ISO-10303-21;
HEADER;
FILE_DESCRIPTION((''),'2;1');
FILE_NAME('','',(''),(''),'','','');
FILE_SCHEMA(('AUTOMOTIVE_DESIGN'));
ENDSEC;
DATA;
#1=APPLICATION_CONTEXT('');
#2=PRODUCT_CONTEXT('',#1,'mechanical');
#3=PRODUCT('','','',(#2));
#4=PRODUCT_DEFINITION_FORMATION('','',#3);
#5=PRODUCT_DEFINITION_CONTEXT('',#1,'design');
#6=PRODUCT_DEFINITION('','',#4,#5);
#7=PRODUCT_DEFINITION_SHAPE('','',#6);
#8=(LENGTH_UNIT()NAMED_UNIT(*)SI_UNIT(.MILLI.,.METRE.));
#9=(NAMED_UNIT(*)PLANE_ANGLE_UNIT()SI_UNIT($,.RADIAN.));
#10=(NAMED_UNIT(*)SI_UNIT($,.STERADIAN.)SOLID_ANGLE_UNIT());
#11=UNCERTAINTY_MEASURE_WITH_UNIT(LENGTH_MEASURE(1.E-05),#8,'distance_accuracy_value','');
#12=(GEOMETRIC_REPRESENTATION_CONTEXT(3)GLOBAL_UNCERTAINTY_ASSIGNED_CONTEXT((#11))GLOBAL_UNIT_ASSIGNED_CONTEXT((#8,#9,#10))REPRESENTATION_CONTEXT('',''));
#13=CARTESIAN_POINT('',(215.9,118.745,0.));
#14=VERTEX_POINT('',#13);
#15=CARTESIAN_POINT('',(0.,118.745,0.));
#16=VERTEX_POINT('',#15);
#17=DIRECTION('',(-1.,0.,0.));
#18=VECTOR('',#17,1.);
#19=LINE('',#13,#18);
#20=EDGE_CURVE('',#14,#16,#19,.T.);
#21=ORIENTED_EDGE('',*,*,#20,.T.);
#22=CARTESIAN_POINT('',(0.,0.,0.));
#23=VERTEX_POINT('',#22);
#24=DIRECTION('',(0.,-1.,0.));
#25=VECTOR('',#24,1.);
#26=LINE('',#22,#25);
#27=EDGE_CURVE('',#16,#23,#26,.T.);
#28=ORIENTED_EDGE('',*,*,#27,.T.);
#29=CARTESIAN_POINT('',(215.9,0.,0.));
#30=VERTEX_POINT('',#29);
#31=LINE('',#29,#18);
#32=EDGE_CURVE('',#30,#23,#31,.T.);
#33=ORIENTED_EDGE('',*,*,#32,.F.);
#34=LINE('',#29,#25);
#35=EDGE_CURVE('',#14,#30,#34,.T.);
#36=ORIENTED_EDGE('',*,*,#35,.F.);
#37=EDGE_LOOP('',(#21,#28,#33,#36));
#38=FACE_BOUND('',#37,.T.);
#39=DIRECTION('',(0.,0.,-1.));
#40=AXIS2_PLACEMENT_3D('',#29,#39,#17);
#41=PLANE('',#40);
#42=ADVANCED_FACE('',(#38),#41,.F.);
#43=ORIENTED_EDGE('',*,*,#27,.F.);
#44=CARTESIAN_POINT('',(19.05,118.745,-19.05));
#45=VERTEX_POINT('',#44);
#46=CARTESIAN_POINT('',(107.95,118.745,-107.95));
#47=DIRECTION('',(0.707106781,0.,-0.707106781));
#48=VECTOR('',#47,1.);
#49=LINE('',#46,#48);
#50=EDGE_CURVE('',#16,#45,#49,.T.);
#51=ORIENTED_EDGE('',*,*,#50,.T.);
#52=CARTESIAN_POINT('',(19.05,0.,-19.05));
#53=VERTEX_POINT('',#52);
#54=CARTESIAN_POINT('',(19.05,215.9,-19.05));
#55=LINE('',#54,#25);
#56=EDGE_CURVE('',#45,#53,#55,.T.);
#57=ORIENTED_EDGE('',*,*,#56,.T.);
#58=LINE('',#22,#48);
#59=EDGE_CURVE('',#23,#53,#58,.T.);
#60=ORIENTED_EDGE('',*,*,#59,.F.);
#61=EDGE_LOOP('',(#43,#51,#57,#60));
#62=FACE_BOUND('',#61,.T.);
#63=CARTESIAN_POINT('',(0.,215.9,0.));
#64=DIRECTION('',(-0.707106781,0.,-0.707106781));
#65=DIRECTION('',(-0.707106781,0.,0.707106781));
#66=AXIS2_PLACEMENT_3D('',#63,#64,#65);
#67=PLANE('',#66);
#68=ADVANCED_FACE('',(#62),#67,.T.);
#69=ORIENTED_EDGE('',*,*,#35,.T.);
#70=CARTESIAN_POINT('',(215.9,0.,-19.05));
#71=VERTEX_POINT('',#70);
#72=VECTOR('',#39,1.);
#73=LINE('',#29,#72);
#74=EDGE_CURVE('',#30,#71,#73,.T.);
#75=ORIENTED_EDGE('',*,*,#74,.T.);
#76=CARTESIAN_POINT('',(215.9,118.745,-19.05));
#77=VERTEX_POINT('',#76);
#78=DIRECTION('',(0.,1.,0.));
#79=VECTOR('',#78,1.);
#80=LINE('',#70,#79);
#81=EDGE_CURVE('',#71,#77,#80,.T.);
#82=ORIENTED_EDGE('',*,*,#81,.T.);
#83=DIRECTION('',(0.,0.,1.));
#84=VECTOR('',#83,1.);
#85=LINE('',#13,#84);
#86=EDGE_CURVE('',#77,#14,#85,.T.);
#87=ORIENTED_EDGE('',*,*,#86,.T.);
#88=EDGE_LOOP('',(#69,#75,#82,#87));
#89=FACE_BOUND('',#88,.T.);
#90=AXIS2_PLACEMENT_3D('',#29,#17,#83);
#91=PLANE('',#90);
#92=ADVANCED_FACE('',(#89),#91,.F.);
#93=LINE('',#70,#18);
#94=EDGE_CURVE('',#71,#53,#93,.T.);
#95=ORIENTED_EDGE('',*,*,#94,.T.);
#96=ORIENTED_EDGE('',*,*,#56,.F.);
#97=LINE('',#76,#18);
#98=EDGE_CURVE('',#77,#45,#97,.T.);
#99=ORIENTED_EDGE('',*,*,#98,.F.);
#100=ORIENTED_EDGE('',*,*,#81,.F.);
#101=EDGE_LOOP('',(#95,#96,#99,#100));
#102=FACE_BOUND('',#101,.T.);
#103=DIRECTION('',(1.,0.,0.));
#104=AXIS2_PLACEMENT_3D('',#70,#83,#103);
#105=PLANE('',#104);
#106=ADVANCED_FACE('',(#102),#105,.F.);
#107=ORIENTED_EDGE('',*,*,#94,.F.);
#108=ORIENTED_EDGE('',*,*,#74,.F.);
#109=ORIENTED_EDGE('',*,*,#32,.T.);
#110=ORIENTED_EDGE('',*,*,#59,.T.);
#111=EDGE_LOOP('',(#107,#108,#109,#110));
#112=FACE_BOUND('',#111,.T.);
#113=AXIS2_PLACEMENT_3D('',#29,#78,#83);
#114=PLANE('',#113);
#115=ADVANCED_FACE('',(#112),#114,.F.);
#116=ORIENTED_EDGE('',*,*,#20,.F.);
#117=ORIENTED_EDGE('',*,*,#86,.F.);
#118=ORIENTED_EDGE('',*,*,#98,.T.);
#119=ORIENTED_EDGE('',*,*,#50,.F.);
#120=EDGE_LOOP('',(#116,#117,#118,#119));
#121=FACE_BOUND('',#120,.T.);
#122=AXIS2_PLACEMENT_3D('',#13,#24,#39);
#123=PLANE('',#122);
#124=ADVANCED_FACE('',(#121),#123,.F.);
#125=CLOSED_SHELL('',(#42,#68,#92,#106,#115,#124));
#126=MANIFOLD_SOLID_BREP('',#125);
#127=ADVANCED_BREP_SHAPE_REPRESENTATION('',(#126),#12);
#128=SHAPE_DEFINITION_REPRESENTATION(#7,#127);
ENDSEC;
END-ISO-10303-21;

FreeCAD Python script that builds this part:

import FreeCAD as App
import Part
import Sketcher
Q = App.Units.Quantity

doc = App.newDocument("Part")
body = doc.addObject("PartDesign::Body", "Body")

sketch1 = body.newObject("Sketcher::SketchObject", "Sketch")
sketch1.AttachmentSupport = (doc.getObject("YZ_Plane"), [""])
sketch1.MapMode = "FlatFace"
sketch1.addGeometry(Part.LineSegment(App.Vector(118.745, 0, 0), App.Vector(0, 0, 0)), False)
sketch1.addGeometry(Part.LineSegment(App.Vector(0, 0, 0), App.Vector(0, -19.05, 0)), False)
sketch1.addGeometry(Part.LineSegment(App.Vector(0, -19.05, 0), App.Vector(118.745, -19.05, 0)), False)
sketch1.addGeometry(Part.LineSegment(App.Vector(118.745, -19.05, 0), App.Vector(118.745, 0, 0)), False)
sketch1.addConstraint(Sketcher.Constraint("Coincident", 0, 2, 1, 1))
sketch1.addConstraint(Sketcher.Constraint("Coincident", 1, 2, 2, 1))
sketch1.addConstraint(Sketcher.Constraint("Coincident", 2, 2, 3, 1))
sketch1.addConstraint(Sketcher.Constraint("Coincident", 3, 2, 0, 1))
sketch1.addConstraint(Sketcher.Constraint("Horizontal", 0))
sketch1.addConstraint(Sketcher.Constraint("Vertical", 1))
sketch1.addConstraint(Sketcher.Constraint("Horizontal", 2))
sketch1.addConstraint(Sketcher.Constraint("Vertical", 3))
sketch1.addConstraint(Sketcher.Constraint("Coincident", 0, 2, -1, 1))
sketch1.addConstraint(Sketcher.Constraint("DistanceY", 1, 2, 1, 1, Q("0.75 in")))
sketch1.addConstraint(Sketcher.Constraint("DistanceX", 0, 2, 0, 1, Q("4.675 in")))
pad1 = body.newObject("PartDesign::Pad", "Pad")
pad1.Profile = sketch1
pad1.Length = Q("8.5 in")

sketch2 = body.newObject("Sketcher::SketchObject", "Sketch001")
sketch2.AttachmentSupport = (doc.getObject("XZ_Plane"), [""])
sketch2.MapMode = "FlatFace"
sketch2.addGeometry(Part.LineSegment(App.Vector(0, 0, 0), App.Vector(19.05, -19.05, 0)), False)
sketch2.addGeometry(Part.LineSegment(App.Vector(19.05, -19.05, 0), App.Vector(0, -19.05, 0)), False)
sketch2.addGeometry(Part.LineSegment(App.Vector(0, -19.05, 0), App.Vector(0, 0, 0)), False)
sketch2.addConstraint(Sketcher.Constraint("Coincident", 0, 2, 1, 1))
sketch2.addConstraint(Sketcher.Constraint("Coincident", 1, 2, 2, 1))
sketch2.addConstraint(Sketcher.Constraint("Coincident", 2, 2, 0, 1))
sketch2.addConstraint(Sketcher.Constraint("Horizontal", 1))
sketch2.addConstraint(Sketcher.Constraint("Vertical", 2))
sketch2.addConstraint(Sketcher.Constraint("Coincident", 2, 2, -1, 1))
sketch2.addConstraint(Sketcher.Constraint("Equal", 1, 2))
sketch2.addConstraint(Sketcher.Constraint("DistanceX", 1, 2, 1, 1, Q("0.75 in")))
pocket1 = body.newObject("PartDesign::Pocket", "Pocket")
pocket1.Profile = sketch2
pocket1.Length = Q("8.5 in")

doc.recompute()
